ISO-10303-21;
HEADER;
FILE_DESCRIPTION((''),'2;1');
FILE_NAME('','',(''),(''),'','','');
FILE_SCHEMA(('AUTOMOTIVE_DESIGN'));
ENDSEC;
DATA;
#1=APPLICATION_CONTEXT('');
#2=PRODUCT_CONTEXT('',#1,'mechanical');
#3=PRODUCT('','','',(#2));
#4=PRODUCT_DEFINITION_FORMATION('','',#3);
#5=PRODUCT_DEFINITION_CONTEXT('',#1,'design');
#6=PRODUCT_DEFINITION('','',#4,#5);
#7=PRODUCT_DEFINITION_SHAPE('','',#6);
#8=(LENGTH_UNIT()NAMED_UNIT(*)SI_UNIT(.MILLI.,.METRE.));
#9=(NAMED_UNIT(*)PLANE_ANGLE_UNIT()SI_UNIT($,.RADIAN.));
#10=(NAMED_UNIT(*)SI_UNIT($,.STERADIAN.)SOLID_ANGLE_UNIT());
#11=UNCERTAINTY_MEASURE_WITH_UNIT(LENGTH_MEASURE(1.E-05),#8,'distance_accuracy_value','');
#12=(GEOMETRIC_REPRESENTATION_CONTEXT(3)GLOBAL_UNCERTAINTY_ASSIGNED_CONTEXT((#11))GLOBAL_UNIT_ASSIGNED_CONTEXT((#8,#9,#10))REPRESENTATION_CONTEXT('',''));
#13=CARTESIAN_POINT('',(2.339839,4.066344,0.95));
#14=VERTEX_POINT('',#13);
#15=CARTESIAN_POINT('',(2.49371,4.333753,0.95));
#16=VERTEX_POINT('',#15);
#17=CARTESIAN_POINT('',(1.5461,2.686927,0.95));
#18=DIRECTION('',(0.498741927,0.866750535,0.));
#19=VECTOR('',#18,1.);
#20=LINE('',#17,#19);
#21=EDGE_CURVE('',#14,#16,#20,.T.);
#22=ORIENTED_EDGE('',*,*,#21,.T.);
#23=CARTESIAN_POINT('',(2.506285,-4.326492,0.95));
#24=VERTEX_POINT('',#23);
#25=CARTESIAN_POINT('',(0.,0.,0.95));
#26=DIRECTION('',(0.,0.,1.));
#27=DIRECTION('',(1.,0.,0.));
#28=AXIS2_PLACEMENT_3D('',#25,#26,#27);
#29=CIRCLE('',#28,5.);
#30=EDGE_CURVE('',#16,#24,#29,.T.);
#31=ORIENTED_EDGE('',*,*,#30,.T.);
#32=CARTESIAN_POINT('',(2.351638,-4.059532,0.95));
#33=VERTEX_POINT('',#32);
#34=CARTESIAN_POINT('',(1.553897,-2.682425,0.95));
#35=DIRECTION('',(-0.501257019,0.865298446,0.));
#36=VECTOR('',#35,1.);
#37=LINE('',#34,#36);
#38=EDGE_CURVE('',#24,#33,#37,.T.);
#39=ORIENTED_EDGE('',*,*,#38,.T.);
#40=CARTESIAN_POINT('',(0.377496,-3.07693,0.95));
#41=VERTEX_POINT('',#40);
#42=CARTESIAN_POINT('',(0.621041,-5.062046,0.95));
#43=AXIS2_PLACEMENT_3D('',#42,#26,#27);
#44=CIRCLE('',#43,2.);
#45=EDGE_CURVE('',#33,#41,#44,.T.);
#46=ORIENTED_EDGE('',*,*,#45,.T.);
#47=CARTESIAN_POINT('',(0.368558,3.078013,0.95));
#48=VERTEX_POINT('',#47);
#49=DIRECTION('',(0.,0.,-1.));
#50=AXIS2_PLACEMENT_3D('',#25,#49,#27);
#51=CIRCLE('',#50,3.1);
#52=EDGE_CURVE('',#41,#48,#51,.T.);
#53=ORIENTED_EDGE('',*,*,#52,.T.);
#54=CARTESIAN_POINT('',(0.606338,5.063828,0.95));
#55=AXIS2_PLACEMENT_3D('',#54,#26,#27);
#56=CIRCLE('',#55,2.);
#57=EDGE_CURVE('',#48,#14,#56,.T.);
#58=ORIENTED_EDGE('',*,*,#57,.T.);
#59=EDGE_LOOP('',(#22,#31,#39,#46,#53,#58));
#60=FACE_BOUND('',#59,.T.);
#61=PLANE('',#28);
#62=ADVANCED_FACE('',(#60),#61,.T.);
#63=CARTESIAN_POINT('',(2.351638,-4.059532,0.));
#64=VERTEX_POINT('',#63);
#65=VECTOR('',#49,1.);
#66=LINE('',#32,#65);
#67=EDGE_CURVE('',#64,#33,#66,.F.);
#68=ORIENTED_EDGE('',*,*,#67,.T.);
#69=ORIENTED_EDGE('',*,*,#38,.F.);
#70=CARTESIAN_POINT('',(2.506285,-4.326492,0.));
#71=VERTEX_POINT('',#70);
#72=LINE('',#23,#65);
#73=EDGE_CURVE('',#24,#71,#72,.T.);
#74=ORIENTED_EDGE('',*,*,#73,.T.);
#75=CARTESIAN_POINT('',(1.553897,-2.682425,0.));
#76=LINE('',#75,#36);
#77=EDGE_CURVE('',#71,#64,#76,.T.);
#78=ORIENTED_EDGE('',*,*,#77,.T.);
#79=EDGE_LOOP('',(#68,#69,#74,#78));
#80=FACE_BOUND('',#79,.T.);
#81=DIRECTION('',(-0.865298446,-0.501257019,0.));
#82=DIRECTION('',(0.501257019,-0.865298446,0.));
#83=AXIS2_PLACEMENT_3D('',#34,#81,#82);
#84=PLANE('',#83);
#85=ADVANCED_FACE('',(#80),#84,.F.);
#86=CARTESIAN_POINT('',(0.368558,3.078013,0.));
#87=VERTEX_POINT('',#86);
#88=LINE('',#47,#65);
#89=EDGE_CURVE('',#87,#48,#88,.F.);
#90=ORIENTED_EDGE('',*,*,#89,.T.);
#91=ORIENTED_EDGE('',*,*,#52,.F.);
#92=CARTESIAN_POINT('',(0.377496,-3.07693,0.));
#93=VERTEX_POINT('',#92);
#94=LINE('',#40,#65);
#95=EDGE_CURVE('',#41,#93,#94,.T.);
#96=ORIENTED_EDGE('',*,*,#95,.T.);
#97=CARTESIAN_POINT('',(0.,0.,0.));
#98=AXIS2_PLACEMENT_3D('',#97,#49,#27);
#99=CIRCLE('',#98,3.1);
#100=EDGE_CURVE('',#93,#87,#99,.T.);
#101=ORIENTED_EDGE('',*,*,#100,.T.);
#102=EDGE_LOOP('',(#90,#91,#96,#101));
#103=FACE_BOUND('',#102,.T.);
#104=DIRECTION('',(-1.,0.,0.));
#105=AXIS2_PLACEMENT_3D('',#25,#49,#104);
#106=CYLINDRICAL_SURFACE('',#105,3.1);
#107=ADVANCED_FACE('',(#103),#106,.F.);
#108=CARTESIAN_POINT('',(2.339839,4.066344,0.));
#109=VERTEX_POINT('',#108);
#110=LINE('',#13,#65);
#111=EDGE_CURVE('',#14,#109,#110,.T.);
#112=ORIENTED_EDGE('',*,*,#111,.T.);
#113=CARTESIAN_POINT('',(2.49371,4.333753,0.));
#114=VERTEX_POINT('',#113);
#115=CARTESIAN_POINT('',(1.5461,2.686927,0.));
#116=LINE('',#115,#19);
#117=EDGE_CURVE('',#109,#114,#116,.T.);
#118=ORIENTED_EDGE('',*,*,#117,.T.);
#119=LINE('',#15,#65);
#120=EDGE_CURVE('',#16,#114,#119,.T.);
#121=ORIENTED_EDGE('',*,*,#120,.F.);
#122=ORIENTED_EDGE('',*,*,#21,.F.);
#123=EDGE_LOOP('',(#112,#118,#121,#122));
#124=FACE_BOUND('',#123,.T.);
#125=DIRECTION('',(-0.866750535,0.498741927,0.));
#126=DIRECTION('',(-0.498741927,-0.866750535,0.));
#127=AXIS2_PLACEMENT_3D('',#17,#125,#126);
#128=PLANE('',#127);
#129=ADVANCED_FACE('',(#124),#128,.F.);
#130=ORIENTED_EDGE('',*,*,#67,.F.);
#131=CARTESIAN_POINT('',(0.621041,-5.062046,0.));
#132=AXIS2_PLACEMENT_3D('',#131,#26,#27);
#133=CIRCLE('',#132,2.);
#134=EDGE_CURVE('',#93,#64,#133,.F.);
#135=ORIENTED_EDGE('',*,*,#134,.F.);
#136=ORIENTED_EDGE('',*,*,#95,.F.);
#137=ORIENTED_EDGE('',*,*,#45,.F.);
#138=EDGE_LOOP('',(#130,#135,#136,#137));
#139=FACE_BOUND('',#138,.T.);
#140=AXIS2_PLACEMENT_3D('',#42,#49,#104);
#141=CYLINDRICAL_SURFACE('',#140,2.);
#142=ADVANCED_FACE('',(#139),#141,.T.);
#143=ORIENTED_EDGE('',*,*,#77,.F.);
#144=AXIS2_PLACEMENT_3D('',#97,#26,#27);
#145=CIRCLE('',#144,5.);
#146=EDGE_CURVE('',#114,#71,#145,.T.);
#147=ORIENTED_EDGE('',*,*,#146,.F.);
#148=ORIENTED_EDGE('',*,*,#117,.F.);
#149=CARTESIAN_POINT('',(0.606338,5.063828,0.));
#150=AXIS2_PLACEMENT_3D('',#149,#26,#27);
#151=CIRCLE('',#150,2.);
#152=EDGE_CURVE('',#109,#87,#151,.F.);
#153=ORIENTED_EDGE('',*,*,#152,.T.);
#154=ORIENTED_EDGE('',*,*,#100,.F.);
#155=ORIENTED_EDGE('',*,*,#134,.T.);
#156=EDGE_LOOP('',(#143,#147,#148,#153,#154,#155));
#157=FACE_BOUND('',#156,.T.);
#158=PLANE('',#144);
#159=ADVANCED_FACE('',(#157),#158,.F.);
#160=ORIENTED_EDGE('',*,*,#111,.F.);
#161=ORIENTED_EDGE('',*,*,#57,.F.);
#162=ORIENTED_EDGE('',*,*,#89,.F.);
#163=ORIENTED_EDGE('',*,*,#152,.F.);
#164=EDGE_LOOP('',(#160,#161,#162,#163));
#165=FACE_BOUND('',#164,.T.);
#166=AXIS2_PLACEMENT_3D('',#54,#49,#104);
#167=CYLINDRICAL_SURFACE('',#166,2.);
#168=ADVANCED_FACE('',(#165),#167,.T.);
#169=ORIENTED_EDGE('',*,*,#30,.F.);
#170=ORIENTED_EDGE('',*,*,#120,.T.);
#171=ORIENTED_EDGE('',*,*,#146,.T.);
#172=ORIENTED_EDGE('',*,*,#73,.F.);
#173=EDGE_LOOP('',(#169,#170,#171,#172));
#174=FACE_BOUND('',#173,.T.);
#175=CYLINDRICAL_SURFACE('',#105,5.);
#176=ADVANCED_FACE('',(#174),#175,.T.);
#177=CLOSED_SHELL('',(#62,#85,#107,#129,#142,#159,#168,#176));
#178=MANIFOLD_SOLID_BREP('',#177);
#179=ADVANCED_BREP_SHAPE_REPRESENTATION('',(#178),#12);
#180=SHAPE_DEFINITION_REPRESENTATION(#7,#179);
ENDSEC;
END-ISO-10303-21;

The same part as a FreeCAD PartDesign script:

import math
import FreeCAD as App
import Part
import Sketcher
from FreeCAD import Vector


def edges_at(feature, points):
    """Names of the edges that pass closest to the given points."""
    edges = feature.Shape.Edges
    near = lambda p: min(range(len(edges)), key=lambda i: edges[i].distToShape(Part.Vertex(*p))[0])
    return sorted({f"Edge{near(p) + 1}" for p in points})

doc = App.newDocument("Part")
body = doc.addObject("PartDesign::Body", "Body")

# Sketch on XY plane
sketch1 = body.newObject("Sketcher::SketchObject", "Sketch")
sketch1.AttachmentSupport = (doc.getObject("XY_Plane"), [""])
sketch1.MapMode = "FlatFace"
sketch1.addGeometry([
    Part.LineSegment(Vector(1.5, 2.7, 0), Vector(2.5, 4.3, 0)),
    Part.ArcOfCircle(Part.Circle(Vector(0, 0, 0), Vector(0, 0, 1), 5), math.radians(60), math.radians(300)),
    Part.LineSegment(Vector(2.5, -4.3, 0), Vector(1.6, -2.7, 0)),
    Part.ArcOfCircle(Part.Circle(Vector(0, 0, 0), Vector(0, 0, 1), 3.1), math.radians(60), math.radians(300)),
], False)
sketch1.addConstraint([
    Sketcher.Constraint("Coincident", 0, 2, 1, 1),
    Sketcher.Constraint("Coincident", 1, 2, 2, 1),
    Sketcher.Constraint("Coincident", 2, 2, 3, 2),
    Sketcher.Constraint("Coincident", 3, 1, 0, 1),
    Sketcher.Constraint("Coincident", 1, 3, -1, 1),
    Sketcher.Constraint("Coincident", 3, 3, -1, 1),
    Sketcher.Constraint("Radius", 1, 5.0),
    Sketcher.Constraint("Radius", 3, 3.1),
    Sketcher.Constraint("DistanceX", -1, 1, 3, 1, 1.5461),
    Sketcher.Constraint("DistanceX", -1, 1, 0, 2, 2.49371),
    Sketcher.Constraint("DistanceX", 2, 2, 1, 2, 0.952388),
    Sketcher.Constraint("DistanceY", 2, 2, 3, 1, 5.369352),
])
pad1 = body.newObject("PartDesign::Pad", "Pad")
pad1.Profile = sketch1
pad1.Length = 0.95
doc.recompute()

fillet = body.newObject("PartDesign::Fillet", "Fillet")
fillet.Base = (pad1, edges_at(pad1, [(1.546, 2.687, 0.475), (1.554, -2.682, 0.475)]))
fillet.Radius = 2

doc.recompute()
